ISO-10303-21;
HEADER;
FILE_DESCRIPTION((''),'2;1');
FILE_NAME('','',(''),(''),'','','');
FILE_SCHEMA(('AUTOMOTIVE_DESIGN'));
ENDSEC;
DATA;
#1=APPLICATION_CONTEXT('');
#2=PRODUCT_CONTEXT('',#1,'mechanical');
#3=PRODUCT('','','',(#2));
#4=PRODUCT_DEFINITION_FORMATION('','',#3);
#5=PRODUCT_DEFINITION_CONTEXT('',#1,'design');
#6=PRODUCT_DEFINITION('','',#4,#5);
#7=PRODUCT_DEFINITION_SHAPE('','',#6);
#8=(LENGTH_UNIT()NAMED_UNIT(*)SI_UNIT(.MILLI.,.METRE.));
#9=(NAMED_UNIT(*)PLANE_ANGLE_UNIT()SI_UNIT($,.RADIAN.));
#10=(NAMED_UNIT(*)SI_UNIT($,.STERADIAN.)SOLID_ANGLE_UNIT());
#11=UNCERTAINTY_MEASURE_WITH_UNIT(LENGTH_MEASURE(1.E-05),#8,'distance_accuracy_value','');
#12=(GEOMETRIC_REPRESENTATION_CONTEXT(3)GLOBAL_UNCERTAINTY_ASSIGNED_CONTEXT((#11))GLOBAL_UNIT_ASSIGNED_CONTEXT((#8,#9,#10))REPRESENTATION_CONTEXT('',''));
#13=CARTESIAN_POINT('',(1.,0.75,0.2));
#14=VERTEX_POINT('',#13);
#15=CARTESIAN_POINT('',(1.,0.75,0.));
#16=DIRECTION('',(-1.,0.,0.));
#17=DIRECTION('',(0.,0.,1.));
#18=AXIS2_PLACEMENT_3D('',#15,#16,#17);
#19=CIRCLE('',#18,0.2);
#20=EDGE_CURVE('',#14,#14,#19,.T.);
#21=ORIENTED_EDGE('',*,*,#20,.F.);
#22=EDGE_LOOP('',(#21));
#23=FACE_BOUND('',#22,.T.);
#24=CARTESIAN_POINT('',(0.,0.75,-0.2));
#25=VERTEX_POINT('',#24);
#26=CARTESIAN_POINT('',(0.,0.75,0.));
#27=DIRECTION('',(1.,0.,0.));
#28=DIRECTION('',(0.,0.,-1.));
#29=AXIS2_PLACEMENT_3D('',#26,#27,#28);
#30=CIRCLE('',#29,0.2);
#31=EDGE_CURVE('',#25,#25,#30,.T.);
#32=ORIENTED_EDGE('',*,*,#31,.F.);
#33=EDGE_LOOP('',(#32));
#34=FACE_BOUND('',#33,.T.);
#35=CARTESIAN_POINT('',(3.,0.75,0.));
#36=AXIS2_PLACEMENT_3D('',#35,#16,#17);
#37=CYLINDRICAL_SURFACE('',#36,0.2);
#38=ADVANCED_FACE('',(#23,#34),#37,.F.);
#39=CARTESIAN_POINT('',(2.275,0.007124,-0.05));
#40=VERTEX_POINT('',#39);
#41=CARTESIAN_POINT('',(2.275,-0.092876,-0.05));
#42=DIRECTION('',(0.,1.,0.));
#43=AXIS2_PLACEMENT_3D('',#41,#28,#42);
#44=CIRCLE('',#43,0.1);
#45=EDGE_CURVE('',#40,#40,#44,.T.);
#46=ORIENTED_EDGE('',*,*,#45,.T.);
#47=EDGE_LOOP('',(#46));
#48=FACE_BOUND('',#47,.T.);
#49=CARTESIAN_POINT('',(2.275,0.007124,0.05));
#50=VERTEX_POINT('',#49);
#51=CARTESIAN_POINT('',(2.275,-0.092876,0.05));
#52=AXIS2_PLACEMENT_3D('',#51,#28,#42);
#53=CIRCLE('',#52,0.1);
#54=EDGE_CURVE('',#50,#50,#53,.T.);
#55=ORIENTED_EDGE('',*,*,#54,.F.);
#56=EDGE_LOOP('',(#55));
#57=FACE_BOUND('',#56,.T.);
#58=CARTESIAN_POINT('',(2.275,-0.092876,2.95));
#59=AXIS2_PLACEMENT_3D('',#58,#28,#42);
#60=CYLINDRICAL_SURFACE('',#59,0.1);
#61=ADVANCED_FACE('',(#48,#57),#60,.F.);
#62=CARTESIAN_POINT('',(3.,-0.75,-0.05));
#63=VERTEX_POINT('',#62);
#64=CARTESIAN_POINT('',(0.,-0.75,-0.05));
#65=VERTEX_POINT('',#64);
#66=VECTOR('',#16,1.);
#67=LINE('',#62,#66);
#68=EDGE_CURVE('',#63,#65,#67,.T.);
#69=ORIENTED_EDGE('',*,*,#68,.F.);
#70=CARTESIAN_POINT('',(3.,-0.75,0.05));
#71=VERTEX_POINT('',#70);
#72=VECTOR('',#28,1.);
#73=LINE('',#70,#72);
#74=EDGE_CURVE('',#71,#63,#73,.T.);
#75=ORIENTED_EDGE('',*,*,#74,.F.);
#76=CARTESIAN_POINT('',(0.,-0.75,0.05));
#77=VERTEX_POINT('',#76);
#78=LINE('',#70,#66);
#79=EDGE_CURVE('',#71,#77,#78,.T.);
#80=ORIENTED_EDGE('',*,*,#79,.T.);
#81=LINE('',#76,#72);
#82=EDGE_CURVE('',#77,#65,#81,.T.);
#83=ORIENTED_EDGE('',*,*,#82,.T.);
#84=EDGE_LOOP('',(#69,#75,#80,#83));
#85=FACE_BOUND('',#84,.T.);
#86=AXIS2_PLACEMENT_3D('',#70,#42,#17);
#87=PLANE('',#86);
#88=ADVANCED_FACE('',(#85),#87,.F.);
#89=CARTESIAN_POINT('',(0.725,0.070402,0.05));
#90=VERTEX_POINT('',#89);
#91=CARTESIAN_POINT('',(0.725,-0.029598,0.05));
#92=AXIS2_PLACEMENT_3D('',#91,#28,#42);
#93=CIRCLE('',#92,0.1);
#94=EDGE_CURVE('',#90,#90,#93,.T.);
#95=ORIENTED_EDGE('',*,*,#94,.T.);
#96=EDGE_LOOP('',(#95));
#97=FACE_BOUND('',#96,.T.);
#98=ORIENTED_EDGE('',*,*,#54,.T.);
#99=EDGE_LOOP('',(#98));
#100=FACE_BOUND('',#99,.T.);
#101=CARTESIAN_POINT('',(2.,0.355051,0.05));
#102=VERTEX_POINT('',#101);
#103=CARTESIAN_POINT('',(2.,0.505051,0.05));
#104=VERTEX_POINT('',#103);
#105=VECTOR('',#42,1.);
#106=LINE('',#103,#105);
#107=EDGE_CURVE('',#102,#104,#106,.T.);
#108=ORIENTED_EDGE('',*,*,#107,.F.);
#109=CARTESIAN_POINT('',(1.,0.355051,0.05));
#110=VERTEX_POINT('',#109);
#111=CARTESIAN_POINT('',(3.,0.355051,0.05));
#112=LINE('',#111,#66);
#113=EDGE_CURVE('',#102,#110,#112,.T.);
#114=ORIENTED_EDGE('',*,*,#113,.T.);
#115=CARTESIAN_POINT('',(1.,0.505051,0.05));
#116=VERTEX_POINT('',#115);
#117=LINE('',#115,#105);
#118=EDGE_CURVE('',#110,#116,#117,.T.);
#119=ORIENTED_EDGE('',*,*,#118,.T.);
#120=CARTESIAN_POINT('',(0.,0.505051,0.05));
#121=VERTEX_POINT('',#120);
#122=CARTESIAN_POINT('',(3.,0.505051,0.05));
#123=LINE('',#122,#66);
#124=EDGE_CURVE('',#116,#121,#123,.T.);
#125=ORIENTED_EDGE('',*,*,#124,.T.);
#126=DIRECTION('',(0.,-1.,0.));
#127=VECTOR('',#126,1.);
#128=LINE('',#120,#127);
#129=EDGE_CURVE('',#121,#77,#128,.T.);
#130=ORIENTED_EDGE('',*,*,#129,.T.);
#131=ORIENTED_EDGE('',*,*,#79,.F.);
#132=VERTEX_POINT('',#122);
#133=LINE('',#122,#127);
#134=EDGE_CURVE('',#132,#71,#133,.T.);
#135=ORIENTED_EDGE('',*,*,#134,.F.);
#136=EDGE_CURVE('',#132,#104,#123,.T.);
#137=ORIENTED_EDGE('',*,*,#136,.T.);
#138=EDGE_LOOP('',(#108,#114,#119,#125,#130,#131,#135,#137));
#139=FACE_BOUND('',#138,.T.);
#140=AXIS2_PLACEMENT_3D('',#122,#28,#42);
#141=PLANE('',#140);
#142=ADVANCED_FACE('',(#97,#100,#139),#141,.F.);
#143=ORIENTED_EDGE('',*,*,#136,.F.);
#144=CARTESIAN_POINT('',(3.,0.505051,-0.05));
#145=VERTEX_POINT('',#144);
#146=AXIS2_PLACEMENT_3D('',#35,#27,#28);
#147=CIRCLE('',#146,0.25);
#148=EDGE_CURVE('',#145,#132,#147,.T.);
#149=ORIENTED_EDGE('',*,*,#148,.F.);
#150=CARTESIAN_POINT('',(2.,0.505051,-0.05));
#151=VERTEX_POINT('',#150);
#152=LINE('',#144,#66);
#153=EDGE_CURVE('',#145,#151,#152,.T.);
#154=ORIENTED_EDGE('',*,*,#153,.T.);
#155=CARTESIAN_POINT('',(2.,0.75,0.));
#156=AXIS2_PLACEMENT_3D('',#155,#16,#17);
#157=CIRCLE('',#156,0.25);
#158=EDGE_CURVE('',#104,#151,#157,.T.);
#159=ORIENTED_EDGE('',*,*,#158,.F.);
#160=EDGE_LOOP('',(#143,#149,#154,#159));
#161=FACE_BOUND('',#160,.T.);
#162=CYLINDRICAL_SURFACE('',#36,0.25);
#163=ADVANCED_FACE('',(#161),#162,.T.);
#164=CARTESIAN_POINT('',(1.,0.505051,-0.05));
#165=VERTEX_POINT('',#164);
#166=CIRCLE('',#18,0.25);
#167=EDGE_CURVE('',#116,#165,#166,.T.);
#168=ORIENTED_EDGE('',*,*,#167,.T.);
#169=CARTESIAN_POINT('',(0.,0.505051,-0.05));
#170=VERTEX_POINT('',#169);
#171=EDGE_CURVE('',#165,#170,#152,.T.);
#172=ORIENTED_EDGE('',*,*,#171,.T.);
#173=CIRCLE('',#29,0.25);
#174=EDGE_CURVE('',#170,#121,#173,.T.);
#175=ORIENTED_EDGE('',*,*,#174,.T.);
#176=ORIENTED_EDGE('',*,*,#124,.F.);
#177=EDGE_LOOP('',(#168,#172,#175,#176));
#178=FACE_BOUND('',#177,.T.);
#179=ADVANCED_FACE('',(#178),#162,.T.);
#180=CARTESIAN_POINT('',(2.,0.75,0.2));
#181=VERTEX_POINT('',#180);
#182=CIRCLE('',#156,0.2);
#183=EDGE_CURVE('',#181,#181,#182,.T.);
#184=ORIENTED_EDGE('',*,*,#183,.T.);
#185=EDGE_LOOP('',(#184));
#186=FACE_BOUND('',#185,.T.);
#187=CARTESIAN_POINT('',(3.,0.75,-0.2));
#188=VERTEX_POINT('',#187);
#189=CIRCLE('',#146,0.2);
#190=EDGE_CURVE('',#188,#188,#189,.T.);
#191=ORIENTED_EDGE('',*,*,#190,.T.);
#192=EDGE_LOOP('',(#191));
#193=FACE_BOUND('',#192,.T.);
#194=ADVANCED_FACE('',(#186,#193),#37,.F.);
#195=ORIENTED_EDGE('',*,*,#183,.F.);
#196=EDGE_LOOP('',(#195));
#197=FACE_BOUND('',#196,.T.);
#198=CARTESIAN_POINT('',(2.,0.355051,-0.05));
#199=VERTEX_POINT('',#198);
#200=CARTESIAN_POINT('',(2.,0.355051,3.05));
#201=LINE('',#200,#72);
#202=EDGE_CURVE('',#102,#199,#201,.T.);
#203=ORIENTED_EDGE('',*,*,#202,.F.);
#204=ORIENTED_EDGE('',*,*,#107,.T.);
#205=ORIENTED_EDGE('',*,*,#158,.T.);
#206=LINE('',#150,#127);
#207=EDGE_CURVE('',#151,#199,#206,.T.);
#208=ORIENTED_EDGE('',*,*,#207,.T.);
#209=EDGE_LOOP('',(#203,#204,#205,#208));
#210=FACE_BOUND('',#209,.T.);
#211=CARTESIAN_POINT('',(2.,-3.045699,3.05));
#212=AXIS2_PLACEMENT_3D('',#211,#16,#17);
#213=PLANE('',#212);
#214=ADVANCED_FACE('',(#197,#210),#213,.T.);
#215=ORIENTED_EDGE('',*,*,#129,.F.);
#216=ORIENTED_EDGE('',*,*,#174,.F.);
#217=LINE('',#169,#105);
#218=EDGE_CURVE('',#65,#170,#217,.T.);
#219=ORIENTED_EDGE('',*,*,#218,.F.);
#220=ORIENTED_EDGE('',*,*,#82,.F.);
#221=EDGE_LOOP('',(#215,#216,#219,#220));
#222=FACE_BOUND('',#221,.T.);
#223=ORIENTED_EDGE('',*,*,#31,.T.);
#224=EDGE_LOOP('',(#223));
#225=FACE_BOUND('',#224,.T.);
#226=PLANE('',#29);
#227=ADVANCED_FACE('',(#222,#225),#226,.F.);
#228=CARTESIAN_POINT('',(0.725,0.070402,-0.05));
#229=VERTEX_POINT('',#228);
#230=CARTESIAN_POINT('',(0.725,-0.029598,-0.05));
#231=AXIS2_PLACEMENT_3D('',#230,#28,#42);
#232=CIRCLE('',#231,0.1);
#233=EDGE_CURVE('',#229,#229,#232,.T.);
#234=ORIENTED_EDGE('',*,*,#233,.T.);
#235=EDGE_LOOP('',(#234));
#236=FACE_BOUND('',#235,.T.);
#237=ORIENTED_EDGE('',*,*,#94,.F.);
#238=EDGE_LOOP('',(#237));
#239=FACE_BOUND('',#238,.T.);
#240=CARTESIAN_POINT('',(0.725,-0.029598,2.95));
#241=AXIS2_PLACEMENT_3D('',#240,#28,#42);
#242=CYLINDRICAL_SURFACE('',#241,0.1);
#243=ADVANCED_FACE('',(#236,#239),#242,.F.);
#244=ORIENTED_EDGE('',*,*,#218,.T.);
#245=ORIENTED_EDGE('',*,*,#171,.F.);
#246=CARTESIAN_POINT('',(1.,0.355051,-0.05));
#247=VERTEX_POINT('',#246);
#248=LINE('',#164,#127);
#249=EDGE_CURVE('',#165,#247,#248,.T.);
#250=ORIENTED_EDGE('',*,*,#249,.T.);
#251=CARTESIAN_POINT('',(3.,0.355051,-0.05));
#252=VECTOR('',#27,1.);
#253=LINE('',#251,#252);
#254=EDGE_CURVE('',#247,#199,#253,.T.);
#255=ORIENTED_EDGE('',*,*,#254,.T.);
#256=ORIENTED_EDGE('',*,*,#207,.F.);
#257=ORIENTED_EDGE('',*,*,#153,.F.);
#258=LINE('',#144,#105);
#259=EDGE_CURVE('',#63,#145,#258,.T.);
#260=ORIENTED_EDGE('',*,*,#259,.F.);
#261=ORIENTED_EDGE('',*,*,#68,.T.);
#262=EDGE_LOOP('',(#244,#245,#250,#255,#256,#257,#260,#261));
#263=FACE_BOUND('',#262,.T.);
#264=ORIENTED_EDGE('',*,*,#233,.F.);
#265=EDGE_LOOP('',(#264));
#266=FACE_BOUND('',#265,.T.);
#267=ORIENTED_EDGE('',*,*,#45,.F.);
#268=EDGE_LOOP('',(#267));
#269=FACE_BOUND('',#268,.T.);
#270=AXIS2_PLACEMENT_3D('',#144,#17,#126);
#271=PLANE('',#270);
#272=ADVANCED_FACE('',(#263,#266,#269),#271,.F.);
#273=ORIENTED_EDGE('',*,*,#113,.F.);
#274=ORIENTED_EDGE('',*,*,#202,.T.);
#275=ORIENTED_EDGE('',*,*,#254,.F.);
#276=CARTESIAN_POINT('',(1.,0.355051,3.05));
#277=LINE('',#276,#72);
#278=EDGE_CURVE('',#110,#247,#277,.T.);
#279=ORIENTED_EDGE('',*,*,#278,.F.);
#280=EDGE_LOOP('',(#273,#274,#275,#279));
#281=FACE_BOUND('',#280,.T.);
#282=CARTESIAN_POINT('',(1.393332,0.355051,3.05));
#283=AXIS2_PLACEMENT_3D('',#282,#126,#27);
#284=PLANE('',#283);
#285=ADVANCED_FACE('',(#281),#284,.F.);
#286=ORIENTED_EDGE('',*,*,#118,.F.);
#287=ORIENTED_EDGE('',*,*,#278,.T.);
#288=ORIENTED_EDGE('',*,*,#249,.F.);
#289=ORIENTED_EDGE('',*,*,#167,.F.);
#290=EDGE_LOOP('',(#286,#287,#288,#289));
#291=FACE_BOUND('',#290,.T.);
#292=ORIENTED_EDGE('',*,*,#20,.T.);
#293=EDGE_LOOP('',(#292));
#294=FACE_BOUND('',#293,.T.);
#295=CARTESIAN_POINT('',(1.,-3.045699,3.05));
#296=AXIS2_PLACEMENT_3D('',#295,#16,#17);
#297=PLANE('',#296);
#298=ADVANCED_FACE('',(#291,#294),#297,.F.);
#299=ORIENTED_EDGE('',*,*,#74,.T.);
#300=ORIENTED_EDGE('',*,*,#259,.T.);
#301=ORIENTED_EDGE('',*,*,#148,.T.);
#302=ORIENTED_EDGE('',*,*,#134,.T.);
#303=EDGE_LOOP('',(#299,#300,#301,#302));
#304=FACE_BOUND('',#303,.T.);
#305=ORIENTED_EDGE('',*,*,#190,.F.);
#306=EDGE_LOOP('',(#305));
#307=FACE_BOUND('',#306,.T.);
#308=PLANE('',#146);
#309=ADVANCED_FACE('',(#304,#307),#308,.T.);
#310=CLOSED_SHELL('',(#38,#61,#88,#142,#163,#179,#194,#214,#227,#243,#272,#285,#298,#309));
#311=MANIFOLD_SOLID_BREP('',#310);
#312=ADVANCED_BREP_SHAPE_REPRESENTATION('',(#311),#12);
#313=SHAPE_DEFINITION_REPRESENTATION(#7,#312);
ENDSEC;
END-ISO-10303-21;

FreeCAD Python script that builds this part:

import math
import FreeCAD as App
import Part
import Sketcher

V = App.Vector

doc = App.newDocument("Part")
body = doc.addObject("PartDesign::Body", "Body")

# Sketch on YZ plane
sketch1 = body.newObject("Sketcher::SketchObject", "Sketch")
sketch1.AttachmentSupport = (doc.getObject("YZ_Plane"), [""])
sketch1.MapMode = "FlatFace"
sketch1.addGeometry([
    Part.LineSegment(V(0.51, 0.05, 0), V(-0.75, 0.05, 0)),  # 0
    Part.LineSegment(V(-0.75, 0.05, 0), V(-0.75, -0.05, 0)),  # 1
    Part.LineSegment(V(-0.75, -0.05, 0), V(0.51, -0.05, 0)),  # 2
    Part.ArcOfCircle(Part.Circle(V(0.75, 0, 0), V(0, 0, 1), 0.25), math.radians(-168), math.radians(168)),  # 3
    Part.Circle(V(0.75, 0, 0), V(0, 0, 1), 0.2),  # 4
], False)
sketch1.addConstraint([
    Sketcher.Constraint("Coincident", 0, 2, 1, 1),
    Sketcher.Constraint("Coincident", 1, 2, 2, 1),
    Sketcher.Constraint("Coincident", 2, 2, 3, 1),
    Sketcher.Constraint("Coincident", 3, 2, 0, 1),
    Sketcher.Constraint("Horizontal", 0),
    Sketcher.Constraint("Vertical", 1),
    Sketcher.Constraint("Horizontal", 2),
    Sketcher.Constraint("Coincident", 4, 3, 3, 3),
    Sketcher.Constraint("Symmetric", 2, 2, 3, 2, -1),
    Sketcher.Constraint("Diameter", 4, 0.4),
    Sketcher.Constraint("Radius", 3, 0.25),
    Sketcher.Constraint("DistanceY", 1, 2, 1, 1, 0.1),
    Sketcher.Constraint("DistanceX", 0, 2, 3, 3, 1.5),
    Sketcher.Constraint("DistanceX", -1, 1, 3, 3, 0.75),
])
pad1 = body.newObject("PartDesign::Pad", "Pad")
pad1.Profile = sketch1
pad1.Length = 3

# Sketch on XY plane
sketch2 = body.newObject("Sketcher::SketchObject", "Sketch001")
sketch2.AttachmentSupport = (doc.getObject("XY_Plane"), [""])
sketch2.MapMode = "FlatFace"
sketch2.AttachmentOffset = App.Placement(V(0, 0, -0.05), App.Rotation())
sketch2.addGeometry([
    Part.ArcOfCircle(Part.Circle(V(2.275, -0.0929, 0), V(0, 0, 1), 0.1), math.radians(-2), math.radians(178)),  # 0
    Part.ArcOfCircle(Part.Circle(V(2.275, -0.0929, 0), V(0, 0, 1), 0.1), math.radians(180), math.radians(358)),  # 1
    Part.ArcOfCircle(Part.Circle(V(2.275, -0.0929, 0), V(0, 0, 1), 0.1), math.radians(177.66), math.radians(180)),  # 2
    Part.ArcOfCircle(Part.Circle(V(0.725, -0.0296, 0), V(0, 0, 1), 0.1), math.radians(-2), math.radians(178)),  # 3
    Part.ArcOfCircle(Part.Circle(V(0.725, -0.0296, 0), V(0, 0, 1), 0.1), math.radians(180), math.radians(358)),  # 4
    Part.ArcOfCircle(Part.Circle(V(0.725, -0.0296, 0), V(0, 0, 1), 0.1), math.radians(177.66), math.radians(180)),  # 5
], False)
sketch2.addConstraint([
    Sketcher.Constraint("Tangent", 0, 1, 1, 2),
    Sketcher.Constraint("Tangent", 1, 1, 2, 2),
    Sketcher.Constraint("Tangent", 2, 1, 0, 2),
    Sketcher.Constraint("Tangent", 3, 1, 4, 2),
    Sketcher.Constraint("Tangent", 4, 1, 5, 2),
    Sketcher.Constraint("Tangent", 5, 1, 3, 2),
    Sketcher.Constraint("Equal", 2, 3),
    Sketcher.Constraint("Horizontal", 2, 3, 1, 1),
    Sketcher.Constraint("Horizontal", 5, 3, 4, 1),
    Sketcher.Constraint("Radius", 0, 0.1),
    Sketcher.Constraint("DistanceX", 3, 3, 2, 3, 1.549998),
    Sketcher.Constraint("DistanceX", -1, 1, 0, 3, 2.275),
    Sketcher.Constraint("DistanceY", 3, 3, -1, 1, 0.029598),
    Sketcher.Constraint("DistanceY", 1, 1, 3, 1, 0.059199),
    Sketcher.Constraint("DistanceY", 2, 1, 4, 1, 0.059199),
    Sketcher.Constraint("DistanceY", 5, 1, -1, 1, 0.025519),
    Sketcher.Constraint("DistanceY", 2, 3, 3, 3, 0.063278),
    Sketcher.Constraint("DistanceY", 0, 1, 0, 3, 0.004079),
])
pocket1 = body.newObject("PartDesign::Pocket", "Pocket")
pocket1.Profile = sketch2
pocket1.Length = 3
pocket1.Reversed = True

# Sketch on XY plane
sketch3 = body.newObject("Sketcher::SketchObject", "Sketch002")
sketch3.AttachmentSupport = (doc.getObject("XY_Plane"), [""])
sketch3.MapMode = "FlatFace"
sketch3.AttachmentOffset = App.Placement(V(0, 0, 0.05), App.Rotation())
sketch3.addGeometry([
    Part.LineSegment(V(1, 1.7, 0), V(1, 0.4, 0)),
    Part.LineSegment(V(1, 0.4, 0), V(2, 0.4, 0)),
    Part.LineSegment(V(2, 0.4, 0), V(2, 1.7, 0)),
    Part.LineSegment(V(2, 1.7, 0), V(1, 1.7, 0)),
], False)
sketch3.addConstraint([
    Sketcher.Constraint("Coincident", 0, 2, 1, 1),
    Sketcher.Constraint("Coincident", 1, 2, 2, 1),
    Sketcher.Constraint("Coincident", 2, 2, 3, 1),
    Sketcher.Constraint("Coincident", 3, 2, 0, 1),
    Sketcher.Constraint("Vertical", 0),
    Sketcher.Constraint("Horizontal", 1),
    Sketcher.Constraint("Vertical", 2),
    Sketcher.Constraint("Horizontal", 3),
    Sketcher.Constraint("DistanceX", 1, 1, 1, 2, 1.0),
    Sketcher.Constraint("DistanceX", -1, 1, 0, 2, 1.0),
    Sketcher.Constraint("DistanceY", 0, 2, 0, 1, 1.358219),
    Sketcher.Constraint("DistanceY", -1, 1, 0, 2, 0.355051),
])
pocket2 = body.newObject("PartDesign::Pocket", "Pocket001")
pocket2.Profile = sketch3
pocket2.Type = "ThroughAll"
pocket2.Midplane = True

doc.recompute()
